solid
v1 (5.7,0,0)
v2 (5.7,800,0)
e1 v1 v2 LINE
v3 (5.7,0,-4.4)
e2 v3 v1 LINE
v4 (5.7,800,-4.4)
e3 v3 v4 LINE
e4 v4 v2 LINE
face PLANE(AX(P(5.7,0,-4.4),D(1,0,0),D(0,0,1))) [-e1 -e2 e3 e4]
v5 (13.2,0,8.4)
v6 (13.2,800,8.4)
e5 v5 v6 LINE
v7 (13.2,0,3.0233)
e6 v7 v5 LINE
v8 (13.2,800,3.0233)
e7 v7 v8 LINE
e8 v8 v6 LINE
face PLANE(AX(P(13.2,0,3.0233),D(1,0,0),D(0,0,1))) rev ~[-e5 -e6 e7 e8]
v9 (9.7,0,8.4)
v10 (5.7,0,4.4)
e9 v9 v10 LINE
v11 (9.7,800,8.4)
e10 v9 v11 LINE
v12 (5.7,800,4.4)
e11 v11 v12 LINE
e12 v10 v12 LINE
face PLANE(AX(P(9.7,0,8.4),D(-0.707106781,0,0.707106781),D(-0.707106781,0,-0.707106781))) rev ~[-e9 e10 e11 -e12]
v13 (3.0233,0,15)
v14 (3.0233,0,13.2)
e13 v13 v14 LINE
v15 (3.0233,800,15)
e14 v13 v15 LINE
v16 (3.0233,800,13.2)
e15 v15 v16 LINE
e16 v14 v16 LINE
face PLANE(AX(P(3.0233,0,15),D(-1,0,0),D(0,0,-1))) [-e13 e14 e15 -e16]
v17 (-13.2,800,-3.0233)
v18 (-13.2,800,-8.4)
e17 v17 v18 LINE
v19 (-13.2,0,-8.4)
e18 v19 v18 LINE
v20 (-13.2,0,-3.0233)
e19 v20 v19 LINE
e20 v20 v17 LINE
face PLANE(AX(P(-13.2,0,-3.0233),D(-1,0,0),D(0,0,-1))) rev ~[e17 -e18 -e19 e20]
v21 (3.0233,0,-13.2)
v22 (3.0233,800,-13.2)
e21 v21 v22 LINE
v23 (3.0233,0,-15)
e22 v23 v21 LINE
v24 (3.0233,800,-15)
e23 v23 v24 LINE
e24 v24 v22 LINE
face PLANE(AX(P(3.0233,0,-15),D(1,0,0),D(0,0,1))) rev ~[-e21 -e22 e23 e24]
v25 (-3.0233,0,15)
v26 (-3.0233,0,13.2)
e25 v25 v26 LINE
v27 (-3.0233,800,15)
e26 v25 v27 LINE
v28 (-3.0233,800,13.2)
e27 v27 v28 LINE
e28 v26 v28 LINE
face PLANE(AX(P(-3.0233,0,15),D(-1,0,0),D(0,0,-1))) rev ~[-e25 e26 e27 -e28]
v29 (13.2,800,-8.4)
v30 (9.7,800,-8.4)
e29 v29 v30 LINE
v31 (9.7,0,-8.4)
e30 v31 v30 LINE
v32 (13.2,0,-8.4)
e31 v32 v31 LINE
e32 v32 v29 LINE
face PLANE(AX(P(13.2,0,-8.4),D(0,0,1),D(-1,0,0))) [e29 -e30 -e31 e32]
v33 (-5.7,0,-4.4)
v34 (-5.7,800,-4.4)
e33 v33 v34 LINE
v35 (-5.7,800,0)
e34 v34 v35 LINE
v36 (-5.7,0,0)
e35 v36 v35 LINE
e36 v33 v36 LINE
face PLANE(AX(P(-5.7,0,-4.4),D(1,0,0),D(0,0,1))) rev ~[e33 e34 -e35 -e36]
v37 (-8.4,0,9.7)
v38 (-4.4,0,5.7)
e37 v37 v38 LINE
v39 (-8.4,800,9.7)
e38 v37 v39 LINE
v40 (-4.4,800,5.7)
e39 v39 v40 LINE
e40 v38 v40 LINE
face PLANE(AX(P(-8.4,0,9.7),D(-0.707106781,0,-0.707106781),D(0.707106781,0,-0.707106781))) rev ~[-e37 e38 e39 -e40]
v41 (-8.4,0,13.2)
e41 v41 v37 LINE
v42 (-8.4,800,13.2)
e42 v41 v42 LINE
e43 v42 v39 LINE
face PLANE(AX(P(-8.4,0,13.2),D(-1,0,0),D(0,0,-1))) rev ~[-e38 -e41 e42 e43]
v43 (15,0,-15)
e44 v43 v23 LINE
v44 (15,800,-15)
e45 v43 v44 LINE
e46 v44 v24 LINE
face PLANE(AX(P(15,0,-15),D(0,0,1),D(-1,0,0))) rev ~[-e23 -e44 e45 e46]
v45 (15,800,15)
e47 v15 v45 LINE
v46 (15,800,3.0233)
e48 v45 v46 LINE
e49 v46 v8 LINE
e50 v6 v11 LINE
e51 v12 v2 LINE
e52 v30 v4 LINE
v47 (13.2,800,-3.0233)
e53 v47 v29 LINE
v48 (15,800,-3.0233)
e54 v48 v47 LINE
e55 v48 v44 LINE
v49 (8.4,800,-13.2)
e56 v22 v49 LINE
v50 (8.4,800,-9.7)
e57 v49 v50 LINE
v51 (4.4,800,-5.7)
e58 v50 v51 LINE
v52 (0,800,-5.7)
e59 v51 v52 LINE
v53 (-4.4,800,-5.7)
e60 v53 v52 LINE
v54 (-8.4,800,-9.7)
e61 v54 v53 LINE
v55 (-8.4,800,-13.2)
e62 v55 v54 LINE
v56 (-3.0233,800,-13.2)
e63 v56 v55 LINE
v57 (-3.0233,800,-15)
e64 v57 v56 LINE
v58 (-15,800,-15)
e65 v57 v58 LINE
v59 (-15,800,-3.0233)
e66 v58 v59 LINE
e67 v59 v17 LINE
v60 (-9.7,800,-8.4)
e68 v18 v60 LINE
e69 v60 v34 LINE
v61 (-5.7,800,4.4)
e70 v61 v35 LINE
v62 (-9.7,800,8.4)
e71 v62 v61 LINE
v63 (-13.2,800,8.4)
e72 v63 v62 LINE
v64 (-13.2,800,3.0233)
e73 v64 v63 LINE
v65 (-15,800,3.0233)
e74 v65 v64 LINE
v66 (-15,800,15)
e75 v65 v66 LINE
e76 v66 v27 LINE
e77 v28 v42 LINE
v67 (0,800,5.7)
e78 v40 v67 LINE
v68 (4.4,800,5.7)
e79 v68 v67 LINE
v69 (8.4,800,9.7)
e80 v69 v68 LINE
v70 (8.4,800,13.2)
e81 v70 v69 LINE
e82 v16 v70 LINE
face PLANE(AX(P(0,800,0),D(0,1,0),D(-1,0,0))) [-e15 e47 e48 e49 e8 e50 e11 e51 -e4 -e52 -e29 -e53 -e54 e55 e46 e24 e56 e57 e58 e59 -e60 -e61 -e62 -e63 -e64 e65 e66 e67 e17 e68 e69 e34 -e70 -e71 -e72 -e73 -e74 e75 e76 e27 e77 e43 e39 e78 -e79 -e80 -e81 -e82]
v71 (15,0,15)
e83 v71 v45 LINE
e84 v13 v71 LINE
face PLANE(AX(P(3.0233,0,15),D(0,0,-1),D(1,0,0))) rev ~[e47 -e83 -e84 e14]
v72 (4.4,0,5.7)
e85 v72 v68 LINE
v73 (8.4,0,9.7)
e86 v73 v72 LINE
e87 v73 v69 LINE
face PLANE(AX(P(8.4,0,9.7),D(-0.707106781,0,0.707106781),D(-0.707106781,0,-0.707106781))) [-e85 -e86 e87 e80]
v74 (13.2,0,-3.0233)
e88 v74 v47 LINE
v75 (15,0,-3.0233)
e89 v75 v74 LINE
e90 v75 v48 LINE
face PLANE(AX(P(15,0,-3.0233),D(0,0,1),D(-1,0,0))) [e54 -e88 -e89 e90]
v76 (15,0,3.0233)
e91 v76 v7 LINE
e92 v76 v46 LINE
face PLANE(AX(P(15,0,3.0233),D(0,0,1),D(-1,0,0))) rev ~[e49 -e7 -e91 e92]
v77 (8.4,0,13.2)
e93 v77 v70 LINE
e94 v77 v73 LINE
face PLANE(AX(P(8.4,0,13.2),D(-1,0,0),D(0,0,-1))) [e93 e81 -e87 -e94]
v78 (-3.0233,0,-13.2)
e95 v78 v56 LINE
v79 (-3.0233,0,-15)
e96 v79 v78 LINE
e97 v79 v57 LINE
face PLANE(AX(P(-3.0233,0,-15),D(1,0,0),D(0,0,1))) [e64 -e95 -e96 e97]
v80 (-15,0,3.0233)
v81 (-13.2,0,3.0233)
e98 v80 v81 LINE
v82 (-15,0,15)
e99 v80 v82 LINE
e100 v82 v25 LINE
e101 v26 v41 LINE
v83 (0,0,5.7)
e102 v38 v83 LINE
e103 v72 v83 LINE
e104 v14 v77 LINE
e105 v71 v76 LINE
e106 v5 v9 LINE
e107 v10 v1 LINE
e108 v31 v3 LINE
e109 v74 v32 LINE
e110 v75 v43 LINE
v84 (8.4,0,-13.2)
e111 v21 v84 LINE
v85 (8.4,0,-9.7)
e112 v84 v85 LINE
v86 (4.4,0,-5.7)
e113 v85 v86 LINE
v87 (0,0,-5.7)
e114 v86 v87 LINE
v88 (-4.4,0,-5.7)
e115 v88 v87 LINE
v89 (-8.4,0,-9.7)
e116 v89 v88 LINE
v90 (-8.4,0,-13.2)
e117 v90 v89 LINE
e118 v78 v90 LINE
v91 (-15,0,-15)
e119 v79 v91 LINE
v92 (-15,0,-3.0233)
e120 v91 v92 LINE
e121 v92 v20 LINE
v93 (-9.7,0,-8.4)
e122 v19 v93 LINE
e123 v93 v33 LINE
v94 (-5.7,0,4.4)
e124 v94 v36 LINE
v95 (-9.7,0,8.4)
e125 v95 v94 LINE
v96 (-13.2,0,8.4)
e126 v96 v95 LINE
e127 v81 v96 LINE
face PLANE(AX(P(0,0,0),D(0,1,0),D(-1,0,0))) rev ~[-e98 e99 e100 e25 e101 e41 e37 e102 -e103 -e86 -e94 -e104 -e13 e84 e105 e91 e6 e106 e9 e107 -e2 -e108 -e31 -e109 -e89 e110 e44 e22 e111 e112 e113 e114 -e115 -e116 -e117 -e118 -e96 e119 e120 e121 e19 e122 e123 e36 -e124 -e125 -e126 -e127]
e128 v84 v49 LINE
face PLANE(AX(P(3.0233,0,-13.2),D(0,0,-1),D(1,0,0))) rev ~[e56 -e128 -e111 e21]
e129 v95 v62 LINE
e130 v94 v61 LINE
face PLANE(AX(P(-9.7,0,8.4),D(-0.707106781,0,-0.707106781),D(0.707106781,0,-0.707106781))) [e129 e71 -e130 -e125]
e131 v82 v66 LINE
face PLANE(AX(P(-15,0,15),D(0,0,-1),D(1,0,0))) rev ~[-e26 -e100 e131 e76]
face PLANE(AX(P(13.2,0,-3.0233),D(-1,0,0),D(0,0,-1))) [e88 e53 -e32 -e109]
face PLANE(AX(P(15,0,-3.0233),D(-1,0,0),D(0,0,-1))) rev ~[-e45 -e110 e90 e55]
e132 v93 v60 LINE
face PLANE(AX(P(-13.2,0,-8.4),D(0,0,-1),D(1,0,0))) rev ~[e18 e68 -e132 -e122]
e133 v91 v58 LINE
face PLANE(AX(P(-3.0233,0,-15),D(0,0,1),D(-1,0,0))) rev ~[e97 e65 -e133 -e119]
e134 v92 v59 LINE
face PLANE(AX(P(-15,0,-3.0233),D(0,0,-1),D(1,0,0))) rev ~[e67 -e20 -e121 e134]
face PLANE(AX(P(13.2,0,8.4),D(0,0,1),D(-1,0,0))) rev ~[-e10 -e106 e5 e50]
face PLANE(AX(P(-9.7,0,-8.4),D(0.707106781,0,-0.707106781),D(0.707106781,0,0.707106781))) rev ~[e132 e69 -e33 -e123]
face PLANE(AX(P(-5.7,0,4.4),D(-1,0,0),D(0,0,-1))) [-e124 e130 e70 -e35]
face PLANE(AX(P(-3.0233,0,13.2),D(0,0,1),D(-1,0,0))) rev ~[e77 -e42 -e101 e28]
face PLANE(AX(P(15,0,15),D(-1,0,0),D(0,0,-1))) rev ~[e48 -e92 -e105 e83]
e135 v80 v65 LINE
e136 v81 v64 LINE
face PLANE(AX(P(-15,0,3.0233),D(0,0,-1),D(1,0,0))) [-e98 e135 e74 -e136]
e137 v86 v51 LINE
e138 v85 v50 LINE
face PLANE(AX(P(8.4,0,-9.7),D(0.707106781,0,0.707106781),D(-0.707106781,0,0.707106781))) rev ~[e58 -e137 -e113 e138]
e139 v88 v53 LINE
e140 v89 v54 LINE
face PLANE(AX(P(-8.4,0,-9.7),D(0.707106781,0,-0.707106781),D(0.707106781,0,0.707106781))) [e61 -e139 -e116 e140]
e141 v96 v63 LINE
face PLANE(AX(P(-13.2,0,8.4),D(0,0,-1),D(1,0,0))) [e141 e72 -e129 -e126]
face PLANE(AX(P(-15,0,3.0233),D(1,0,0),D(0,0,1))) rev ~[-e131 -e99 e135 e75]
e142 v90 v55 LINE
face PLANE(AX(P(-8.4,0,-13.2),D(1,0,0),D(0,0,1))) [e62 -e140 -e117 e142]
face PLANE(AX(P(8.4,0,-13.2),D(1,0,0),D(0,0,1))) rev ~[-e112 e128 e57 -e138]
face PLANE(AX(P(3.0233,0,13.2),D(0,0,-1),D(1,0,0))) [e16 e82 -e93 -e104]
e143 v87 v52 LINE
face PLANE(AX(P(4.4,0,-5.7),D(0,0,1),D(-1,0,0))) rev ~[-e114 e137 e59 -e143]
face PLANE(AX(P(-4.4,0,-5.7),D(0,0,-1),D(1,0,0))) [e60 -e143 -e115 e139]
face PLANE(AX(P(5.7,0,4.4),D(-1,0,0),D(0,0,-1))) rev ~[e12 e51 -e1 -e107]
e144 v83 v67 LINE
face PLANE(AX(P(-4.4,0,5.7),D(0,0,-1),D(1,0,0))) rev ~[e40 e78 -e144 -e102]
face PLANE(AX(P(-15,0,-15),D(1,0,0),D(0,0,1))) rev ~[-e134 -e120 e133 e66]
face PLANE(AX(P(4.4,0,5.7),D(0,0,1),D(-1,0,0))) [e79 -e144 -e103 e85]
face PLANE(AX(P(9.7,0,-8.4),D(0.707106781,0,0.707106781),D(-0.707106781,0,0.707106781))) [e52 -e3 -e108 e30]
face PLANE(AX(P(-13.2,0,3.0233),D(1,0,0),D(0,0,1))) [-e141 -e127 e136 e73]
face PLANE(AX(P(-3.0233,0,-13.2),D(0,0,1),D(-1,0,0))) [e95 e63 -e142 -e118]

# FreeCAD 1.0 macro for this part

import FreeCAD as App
import Part
import Sketcher
from FreeCAD import Vector

doc = App.newDocument("Part")
body = doc.addObject("PartDesign::Body", "Body")

# Sketch on XZ plane
sketch1 = body.newObject("Sketcher::SketchObject", "Sketch")
sketch1.AttachmentSupport = (doc.getObject("XZ_Plane"), [""])
sketch1.MapMode = "FlatFace"
sketch1.addGeometry(Part.LineSegment(Vector(-13.2, 3.0233, 0), Vector(-15, 3.0233, 0)), False)
sketch1.addGeometry(Part.LineSegment(Vector(-15, 3.0233, 0), Vector(-15, 15, 0)), False)
sketch1.addGeometry(Part.LineSegment(Vector(-15, 15, 0), Vector(-3.0233, 15, 0)), False)
sketch1.addGeometry(Part.LineSegment(Vector(-3.0233, 15, 0), Vector(-3.0233, 13.2, 0)), False)
sketch1.addGeometry(Part.LineSegment(Vector(-3.0233, 13.2, 0), Vector(-8.4, 13.2, 0)), False)
sketch1.addGeometry(Part.LineSegment(Vector(-8.4, 13.2, 0), Vector(-8.4, 9.7, 0)), False)
sketch1.addGeometry(Part.LineSegment(Vector(-8.4, 9.7, 0), Vector(-4.4, 5.7, 0)), False)
sketch1.addGeometry(Part.LineSegment(Vector(-4.4, 5.7, 0), Vector(4.4, 5.7, 0)), False)
sketch1.addGeometry(Part.LineSegment(Vector(4.4, 5.7, 0), Vector(8.4, 9.7, 0)), False)
sketch1.addGeometry(Part.LineSegment(Vector(8.4, 9.7, 0), Vector(8.4, 13.2, 0)), False)
sketch1.addGeometry(Part.LineSegment(Vector(8.4, 13.2, 0), Vector(3.0233, 13.2, 0)), False)
sketch1.addGeometry(Part.LineSegment(Vector(3.0233, 13.2, 0), Vector(3.0233, 15, 0)), False)
sketch1.addGeometry(Part.LineSegment(Vector(3.0233, 15, 0), Vector(15, 15, 0)), False)
sketch1.addGeometry(Part.LineSegment(Vector(15, 15, 0), Vector(15, 3.0233, 0)), False)
sketch1.addGeometry(Part.LineSegment(Vector(15, 3.0233, 0), Vector(13.2, 3.0233, 0)), False)
sketch1.addGeometry(Part.LineSegment(Vector(13.2, 3.0233, 0), Vector(13.2, 8.4, 0)), False)
sketch1.addGeometry(Part.LineSegment(Vector(13.2, 8.4, 0), Vector(9.7, 8.4, 0)), False)
sketch1.addGeometry(Part.LineSegment(Vector(9.7, 8.4, 0), Vector(5.7, 4.4, 0)), False)
sketch1.addGeometry(Part.LineSegment(Vector(5.7, 4.4, 0), Vector(5.7, -4.4, 0)), False)
sketch1.addGeometry(Part.LineSegment(Vector(5.7, -4.4, 0), Vector(9.7, -8.4, 0)), False)
sketch1.addGeometry(Part.LineSegment(Vector(9.7, -8.4, 0), Vector(13.2, -8.4, 0)), False)
sketch1.addGeometry(Part.LineSegment(Vector(13.2, -8.4, 0), Vector(13.2, -3.0233, 0)), False)
sketch1.addGeometry(Part.LineSegment(Vector(13.2, -3.0233, 0), Vector(15, -3.0233, 0)), False)
sketch1.addGeometry(Part.LineSegment(Vector(15, -3.0233, 0), Vector(15, -15, 0)), False)
sketch1.addGeometry(Part.LineSegment(Vector(15, -15, 0), Vector(3.0233, -15, 0)), False)
sketch1.addGeometry(Part.LineSegment(Vector(3.0233, -15, 0), Vector(3.0233, -13.2, 0)), False)
sketch1.addGeometry(Part.LineSegment(Vector(3.0233, -13.2, 0), Vector(8.4, -13.2, 0)), False)
sketch1.addGeometry(Part.LineSegment(Vector(8.4, -13.2, 0), Vector(8.4, -9.7, 0)), False)
sketch1.addGeometry(Part.LineSegment(Vector(8.4, -9.7, 0), Vector(4.4, -5.7, 0)), False)
sketch1.addGeometry(Part.LineSegment(Vector(4.4, -5.7, 0), Vector(-4.4, -5.7, 0)), False)
sketch1.addGeometry(Part.LineSegment(Vector(-4.4, -5.7, 0), Vector(-8.4, -9.7, 0)), False)
sketch1.addGeometry(Part.LineSegment(Vector(-8.4, -9.7, 0), Vector(-8.4, -13.2, 0)), False)
sketch1.addGeometry(Part.LineSegment(Vector(-8.4, -13.2, 0), Vector(-3.0233, -13.2, 0)), False)
sketch1.addGeometry(Part.LineSegment(Vector(-3.0233, -13.2, 0), Vector(-3.0233, -15, 0)), False)
sketch1.addGeometry(Part.LineSegment(Vector(-3.0233, -15, 0), Vector(-15, -15, 0)), False)
sketch1.addGeometry(Part.LineSegment(Vector(-15, -15, 0), Vector(-15, -3.0233, 0)), False)
sketch1.addGeometry(Part.LineSegment(Vector(-15, -3.0233, 0), Vector(-13.2, -3.0233, 0)), False)
sketch1.addGeometry(Part.LineSegment(Vector(-13.2, -3.0233, 0), Vector(-13.2, -8.4, 0)), False)
sketch1.addGeometry(Part.LineSegment(Vector(-13.2, -8.4, 0), Vector(-9.7, -8.4, 0)), False)
sketch1.addGeometry(Part.LineSegment(Vector(-9.7, -8.4, 0), Vector(-5.7, -4.4, 0)), False)
sketch1.addGeometry(Part.LineSegment(Vector(-5.7, -4.4, 0), Vector(-5.7, 4.4, 0)), False)
sketch1.addGeometry(Part.LineSegment(Vector(-5.7, 4.4, 0), Vector(-9.7, 8.4, 0)), False)
sketch1.addGeometry(Part.LineSegment(Vector(-9.7, 8.4, 0), Vector(-13.2, 8.4, 0)), False)
sketch1.addGeometry(Part.LineSegment(Vector(-13.2, 8.4, 0), Vector(-13.2, 3.0233, 0)), False)
sketch1.addConstraint(Sketcher.Constraint("Coincident", 0, 2, 1, 1))
sketch1.addConstraint(Sketcher.Constraint("Coincident", 1, 2, 2, 1))
sketch1.addConstraint(Sketcher.Constraint("Coincident", 2, 2, 3, 1))
sketch1.addConstraint(Sketcher.Constraint("Coincident", 3, 2, 4, 1))
sketch1.addConstraint(Sketcher.Constraint("Coincident", 4, 2, 5, 1))
sketch1.addConstraint(Sketcher.Constraint("Coincident", 5, 2, 6, 1))
sketch1.addConstraint(Sketcher.Constraint("Coincident", 6, 2, 7, 1))
sketch1.addConstraint(Sketcher.Constraint("Coincident", 7, 2, 8, 1))
sketch1.addConstraint(Sketcher.Constraint("Coincident", 8, 2, 9, 1))
sketch1.addConstraint(Sketcher.Constraint("Coincident", 9, 2, 10, 1))
sketch1.addConstraint(Sketcher.Constraint("Coincident", 10, 2, 11, 1))
sketch1.addConstraint(Sketcher.Constraint("Coincident", 11, 2, 12, 1))
sketch1.addConstraint(Sketcher.Constraint("Coincident", 12, 2, 13, 1))
sketch1.addConstraint(Sketcher.Constraint("Coincident", 13, 2, 14, 1))
sketch1.addConstraint(Sketcher.Constraint("Coincident", 14, 2, 15, 1))
sketch1.addConstraint(Sketcher.Constraint("Coincident", 15, 2, 16, 1))
sketch1.addConstraint(Sketcher.Constraint("Coincident", 16, 2, 17, 1))
sketch1.addConstraint(Sketcher.Constraint("Coincident", 17, 2, 18, 1))
sketch1.addConstraint(Sketcher.Constraint("Coincident", 18, 2, 19, 1))
sketch1.addConstraint(Sketcher.Constraint("Coincident", 19, 2, 20, 1))
sketch1.addConstraint(Sketcher.Constraint("Coincident", 20, 2, 21, 1))
sketch1.addConstraint(Sketcher.Constraint("Coincident", 21, 2, 22, 1))
sketch1.addConstraint(Sketcher.Constraint("Coincident", 22, 2, 23, 1))
sketch1.addConstraint(Sketcher.Constraint("Coincident", 23, 2, 24, 1))
sketch1.addConstraint(Sketcher.Constraint("Coincident", 24, 2, 25, 1))
sketch1.addConstraint(Sketcher.Constraint("Coincident", 25, 2, 26, 1))
sketch1.addConstraint(Sketcher.Constraint("Coincident", 26, 2, 27, 1))
sketch1.addConstraint(Sketcher.Constraint("Coincident", 27, 2, 28, 1))
sketch1.addConstraint(Sketcher.Constraint("Coincident", 28, 2, 29, 1))
sketch1.addConstraint(Sketcher.Constraint("Coincident", 29, 2, 30, 1))
sketch1.addConstraint(Sketcher.Constraint("Coincident", 30, 2, 31, 1))
sketch1.addConstraint(Sketcher.Constraint("Coincident", 31, 2, 32, 1))
sketch1.addConstraint(Sketcher.Constraint("Coincident", 32, 2, 33, 1))
sketch1.addConstraint(Sketcher.Constraint("Coincident", 33, 2, 34, 1))
sketch1.addConstraint(Sketcher.Constraint("Coincident", 34, 2, 35, 1))
sketch1.addConstraint(Sketcher.Constraint("Coincident", 35, 2, 36, 1))
sketch1.addConstraint(Sketcher.Constraint("Coincident", 36, 2, 37, 1))
sketch1.addConstraint(Sketcher.Constraint("Coincident", 37, 2, 38, 1))
sketch1.addConstraint(Sketcher.Constraint("Coincident", 38, 2, 39, 1))
sketch1.addConstraint(Sketcher.Constraint("Coincident", 39, 2, 40, 1))
sketch1.addConstraint(Sketcher.Constraint("Coincident", 40, 2, 41, 1))
sketch1.addConstraint(Sketcher.Constraint("Coincident", 41, 2, 42, 1))
sketch1.addConstraint(Sketcher.Constraint("Coincident", 42, 2, 43, 1))
sketch1.addConstraint(Sketcher.Constraint("Coincident", 43, 2, 0, 1))
sketch1.addConstraint(Sketcher.Constraint("Horizontal", 0))
sketch1.addConstraint(Sketcher.Constraint("Vertical", 1))
sketch1.addConstraint(Sketcher.Constraint("Horizontal", 2))
sketch1.addConstraint(Sketcher.Constraint("Vertical", 3))
sketch1.addConstraint(Sketcher.Constraint("Horizontal", 4))
sketch1.addConstraint(Sketcher.Constraint("Vertical", 5))
sketch1.addConstraint(Sketcher.Constraint("Horizontal", 7))
sketch1.addConstraint(Sketcher.Constraint("Vertical", 9))
sketch1.addConstraint(Sketcher.Constraint("Horizontal", 10))
sketch1.addConstraint(Sketcher.Constraint("Vertical", 11))
sketch1.addConstraint(Sketcher.Constraint("Horizontal", 12))
sketch1.addConstraint(Sketcher.Constraint("Vertical", 13))
sketch1.addConstraint(Sketcher.Constraint("Horizontal", 14))
sketch1.addConstraint(Sketcher.Constraint("Vertical", 15))
sketch1.addConstraint(Sketcher.Constraint("Horizontal", 16))
sketch1.addConstraint(Sketcher.Constraint("Vertical", 18))
sketch1.addConstraint(Sketcher.Constraint("Horizontal", 20))
sketch1.addConstraint(Sketcher.Constraint("Vertical", 21))
sketch1.addConstraint(Sketcher.Constraint("Horizontal", 22))
sketch1.addConstraint(Sketcher.Constraint("Vertical", 23))
sketch1.addConstraint(Sketcher.Constraint("Horizontal", 24))
sketch1.addConstraint(Sketcher.Constraint("Vertical", 25))
sketch1.addConstraint(Sketcher.Constraint("Horizontal", 26))
sketch1.addConstraint(Sketcher.Constraint("Vertical", 27))
sketch1.addConstraint(Sketcher.Constraint("Horizontal", 29))
sketch1.addConstraint(Sketcher.Constraint("Vertical", 31))
sketch1.addConstraint(Sketcher.Constraint("Horizontal", 32))
sketch1.addConstraint(Sketcher.Constraint("Vertical", 33))
sketch1.addConstraint(Sketcher.Constraint("Horizontal", 34))
sketch1.addConstraint(Sketcher.Constraint("Vertical", 35))
sketch1.addConstraint(Sketcher.Constraint("Horizontal", 36))
sketch1.addConstraint(Sketcher.Constraint("Vertical", 37))
sketch1.addConstraint(Sketcher.Constraint("Horizontal", 38))
sketch1.addConstraint(Sketcher.Constraint("Vertical", 40))
sketch1.addConstraint(Sketcher.Constraint("Horizontal", 42))
sketch1.addConstraint(Sketcher.Constraint("Vertical", 43))
sketch1.addConstraint(Sketcher.Constraint("Symmetric", 0, 2, 22, 2, -1, 1))
sketch1.addConstraint(Sketcher.Constraint("Symmetric", 2, 2, 24, 2, -1, 1))
sketch1.addConstraint(Sketcher.Constraint("Symmetric", 4, 2, 26, 2, -1, 1))
sketch1.addConstraint(Sketcher.Constraint("Symmetric", 6, 2, 28, 2, -1, 1))
sketch1.addConstraint(Sketcher.Constraint("Symmetric", 8, 2, 30, 2, -1, 1))
sketch1.addConstraint(Sketcher.Constraint("Symmetric", 10, 2, 32, 2, -1, 1))
sketch1.addConstraint(Sketcher.Constraint("Symmetric", 12, 2, 34, 2, -1, 1))
sketch1.addConstraint(Sketcher.Constraint("Symmetric", 14, 2, 36, 2, -1, 1))
sketch1.addConstraint(Sketcher.Constraint("Symmetric", 16, 2, 38, 2, -1, 1))
sketch1.addConstraint(Sketcher.Constraint("Symmetric", 17, 2, 39, 2, -1, 1))
sketch1.addConstraint(Sketcher.Constraint("Symmetric", 19, 2, 41, 2, -1, 1))
sketch1.addConstraint(Sketcher.Constraint("Symmetric", 5, 2, 8, 2, -2))
sketch1.addConstraint(Sketcher.Constraint("Symmetric", 3, 2, 10, 2, -2))
sketch1.addConstraint(Sketcher.Constraint("Symmetric", 1, 2, 12, 2, -2))
sketch1.addConstraint(Sketcher.Constraint("Symmetric", 21, 2, 36, 2, -2))
sketch1.addConstraint(Sketcher.Constraint("Symmetric", 19, 2, 38, 2, -2))
sketch1.addConstraint(Sketcher.Constraint("Perpendicular", 6, 8))
sketch1.addConstraint(Sketcher.Constraint("Parallel", 8, 17))
sketch1.addConstraint(Sketcher.Constraint("Perpendicular", 17, 19))
sketch1.addConstraint(Sketcher.Constraint("Parallel", 19, 28))
sketch1.addConstraint(Sketcher.Constraint("Perpendicular", 28, 30))
sketch1.addConstraint(Sketcher.Constraint("Perpendicular", 39, 41))
sketch1.addConstraint(Sketcher.Constraint("Horizontal", 18, 2, 39, 2))
sketch1.addConstraint(Sketcher.Constraint("Vertical", 37, 2, 42, 2))
sketch1.addConstraint(Sketcher.Constraint("Equal", 34, 1))
sketch1.addConstraint(Sketcher.Constraint("Equal", 36, 3))
sketch1.addConstraint(Sketcher.Constraint("Equal", 42, 5))
sketch1.addConstraint(Sketcher.Constraint("Equal", 32, 15))
sketch1.addConstraint(Sketcher.Constraint("Equal", 29, 18))
sketch1.addConstraint(Sketcher.Constraint("Equal", 8, 17))
sketch1.addConstraint(Sketcher.Constraint("DistanceX", 0, 2, 0, 1, 1.8))
sketch1.addConstraint(Sketcher.Constraint("DistanceX", 5, 2, 6, 2, 4.0))
sketch1.addConstraint(Sketcher.Constraint("DistanceX", 4, 2, -1, 1, 8.4))
sketch1.addConstraint(Sketcher.Constraint("DistanceY", -1, 1, 6, 2, 5.7))
sketch1.addConstraint(Sketcher.Constraint("DistanceX", 16, 2, 16, 1, 3.5))
sketch1.addConstraint(Sketcher.Constraint("DistanceX", 2, 1, 2, 2, 11.9767))
pad1 = body.newObject("PartDesign::Pad", "Pad")
pad1.Profile = sketch1
pad1.Length = 800
pad1.Reversed = True

doc.recompute()
